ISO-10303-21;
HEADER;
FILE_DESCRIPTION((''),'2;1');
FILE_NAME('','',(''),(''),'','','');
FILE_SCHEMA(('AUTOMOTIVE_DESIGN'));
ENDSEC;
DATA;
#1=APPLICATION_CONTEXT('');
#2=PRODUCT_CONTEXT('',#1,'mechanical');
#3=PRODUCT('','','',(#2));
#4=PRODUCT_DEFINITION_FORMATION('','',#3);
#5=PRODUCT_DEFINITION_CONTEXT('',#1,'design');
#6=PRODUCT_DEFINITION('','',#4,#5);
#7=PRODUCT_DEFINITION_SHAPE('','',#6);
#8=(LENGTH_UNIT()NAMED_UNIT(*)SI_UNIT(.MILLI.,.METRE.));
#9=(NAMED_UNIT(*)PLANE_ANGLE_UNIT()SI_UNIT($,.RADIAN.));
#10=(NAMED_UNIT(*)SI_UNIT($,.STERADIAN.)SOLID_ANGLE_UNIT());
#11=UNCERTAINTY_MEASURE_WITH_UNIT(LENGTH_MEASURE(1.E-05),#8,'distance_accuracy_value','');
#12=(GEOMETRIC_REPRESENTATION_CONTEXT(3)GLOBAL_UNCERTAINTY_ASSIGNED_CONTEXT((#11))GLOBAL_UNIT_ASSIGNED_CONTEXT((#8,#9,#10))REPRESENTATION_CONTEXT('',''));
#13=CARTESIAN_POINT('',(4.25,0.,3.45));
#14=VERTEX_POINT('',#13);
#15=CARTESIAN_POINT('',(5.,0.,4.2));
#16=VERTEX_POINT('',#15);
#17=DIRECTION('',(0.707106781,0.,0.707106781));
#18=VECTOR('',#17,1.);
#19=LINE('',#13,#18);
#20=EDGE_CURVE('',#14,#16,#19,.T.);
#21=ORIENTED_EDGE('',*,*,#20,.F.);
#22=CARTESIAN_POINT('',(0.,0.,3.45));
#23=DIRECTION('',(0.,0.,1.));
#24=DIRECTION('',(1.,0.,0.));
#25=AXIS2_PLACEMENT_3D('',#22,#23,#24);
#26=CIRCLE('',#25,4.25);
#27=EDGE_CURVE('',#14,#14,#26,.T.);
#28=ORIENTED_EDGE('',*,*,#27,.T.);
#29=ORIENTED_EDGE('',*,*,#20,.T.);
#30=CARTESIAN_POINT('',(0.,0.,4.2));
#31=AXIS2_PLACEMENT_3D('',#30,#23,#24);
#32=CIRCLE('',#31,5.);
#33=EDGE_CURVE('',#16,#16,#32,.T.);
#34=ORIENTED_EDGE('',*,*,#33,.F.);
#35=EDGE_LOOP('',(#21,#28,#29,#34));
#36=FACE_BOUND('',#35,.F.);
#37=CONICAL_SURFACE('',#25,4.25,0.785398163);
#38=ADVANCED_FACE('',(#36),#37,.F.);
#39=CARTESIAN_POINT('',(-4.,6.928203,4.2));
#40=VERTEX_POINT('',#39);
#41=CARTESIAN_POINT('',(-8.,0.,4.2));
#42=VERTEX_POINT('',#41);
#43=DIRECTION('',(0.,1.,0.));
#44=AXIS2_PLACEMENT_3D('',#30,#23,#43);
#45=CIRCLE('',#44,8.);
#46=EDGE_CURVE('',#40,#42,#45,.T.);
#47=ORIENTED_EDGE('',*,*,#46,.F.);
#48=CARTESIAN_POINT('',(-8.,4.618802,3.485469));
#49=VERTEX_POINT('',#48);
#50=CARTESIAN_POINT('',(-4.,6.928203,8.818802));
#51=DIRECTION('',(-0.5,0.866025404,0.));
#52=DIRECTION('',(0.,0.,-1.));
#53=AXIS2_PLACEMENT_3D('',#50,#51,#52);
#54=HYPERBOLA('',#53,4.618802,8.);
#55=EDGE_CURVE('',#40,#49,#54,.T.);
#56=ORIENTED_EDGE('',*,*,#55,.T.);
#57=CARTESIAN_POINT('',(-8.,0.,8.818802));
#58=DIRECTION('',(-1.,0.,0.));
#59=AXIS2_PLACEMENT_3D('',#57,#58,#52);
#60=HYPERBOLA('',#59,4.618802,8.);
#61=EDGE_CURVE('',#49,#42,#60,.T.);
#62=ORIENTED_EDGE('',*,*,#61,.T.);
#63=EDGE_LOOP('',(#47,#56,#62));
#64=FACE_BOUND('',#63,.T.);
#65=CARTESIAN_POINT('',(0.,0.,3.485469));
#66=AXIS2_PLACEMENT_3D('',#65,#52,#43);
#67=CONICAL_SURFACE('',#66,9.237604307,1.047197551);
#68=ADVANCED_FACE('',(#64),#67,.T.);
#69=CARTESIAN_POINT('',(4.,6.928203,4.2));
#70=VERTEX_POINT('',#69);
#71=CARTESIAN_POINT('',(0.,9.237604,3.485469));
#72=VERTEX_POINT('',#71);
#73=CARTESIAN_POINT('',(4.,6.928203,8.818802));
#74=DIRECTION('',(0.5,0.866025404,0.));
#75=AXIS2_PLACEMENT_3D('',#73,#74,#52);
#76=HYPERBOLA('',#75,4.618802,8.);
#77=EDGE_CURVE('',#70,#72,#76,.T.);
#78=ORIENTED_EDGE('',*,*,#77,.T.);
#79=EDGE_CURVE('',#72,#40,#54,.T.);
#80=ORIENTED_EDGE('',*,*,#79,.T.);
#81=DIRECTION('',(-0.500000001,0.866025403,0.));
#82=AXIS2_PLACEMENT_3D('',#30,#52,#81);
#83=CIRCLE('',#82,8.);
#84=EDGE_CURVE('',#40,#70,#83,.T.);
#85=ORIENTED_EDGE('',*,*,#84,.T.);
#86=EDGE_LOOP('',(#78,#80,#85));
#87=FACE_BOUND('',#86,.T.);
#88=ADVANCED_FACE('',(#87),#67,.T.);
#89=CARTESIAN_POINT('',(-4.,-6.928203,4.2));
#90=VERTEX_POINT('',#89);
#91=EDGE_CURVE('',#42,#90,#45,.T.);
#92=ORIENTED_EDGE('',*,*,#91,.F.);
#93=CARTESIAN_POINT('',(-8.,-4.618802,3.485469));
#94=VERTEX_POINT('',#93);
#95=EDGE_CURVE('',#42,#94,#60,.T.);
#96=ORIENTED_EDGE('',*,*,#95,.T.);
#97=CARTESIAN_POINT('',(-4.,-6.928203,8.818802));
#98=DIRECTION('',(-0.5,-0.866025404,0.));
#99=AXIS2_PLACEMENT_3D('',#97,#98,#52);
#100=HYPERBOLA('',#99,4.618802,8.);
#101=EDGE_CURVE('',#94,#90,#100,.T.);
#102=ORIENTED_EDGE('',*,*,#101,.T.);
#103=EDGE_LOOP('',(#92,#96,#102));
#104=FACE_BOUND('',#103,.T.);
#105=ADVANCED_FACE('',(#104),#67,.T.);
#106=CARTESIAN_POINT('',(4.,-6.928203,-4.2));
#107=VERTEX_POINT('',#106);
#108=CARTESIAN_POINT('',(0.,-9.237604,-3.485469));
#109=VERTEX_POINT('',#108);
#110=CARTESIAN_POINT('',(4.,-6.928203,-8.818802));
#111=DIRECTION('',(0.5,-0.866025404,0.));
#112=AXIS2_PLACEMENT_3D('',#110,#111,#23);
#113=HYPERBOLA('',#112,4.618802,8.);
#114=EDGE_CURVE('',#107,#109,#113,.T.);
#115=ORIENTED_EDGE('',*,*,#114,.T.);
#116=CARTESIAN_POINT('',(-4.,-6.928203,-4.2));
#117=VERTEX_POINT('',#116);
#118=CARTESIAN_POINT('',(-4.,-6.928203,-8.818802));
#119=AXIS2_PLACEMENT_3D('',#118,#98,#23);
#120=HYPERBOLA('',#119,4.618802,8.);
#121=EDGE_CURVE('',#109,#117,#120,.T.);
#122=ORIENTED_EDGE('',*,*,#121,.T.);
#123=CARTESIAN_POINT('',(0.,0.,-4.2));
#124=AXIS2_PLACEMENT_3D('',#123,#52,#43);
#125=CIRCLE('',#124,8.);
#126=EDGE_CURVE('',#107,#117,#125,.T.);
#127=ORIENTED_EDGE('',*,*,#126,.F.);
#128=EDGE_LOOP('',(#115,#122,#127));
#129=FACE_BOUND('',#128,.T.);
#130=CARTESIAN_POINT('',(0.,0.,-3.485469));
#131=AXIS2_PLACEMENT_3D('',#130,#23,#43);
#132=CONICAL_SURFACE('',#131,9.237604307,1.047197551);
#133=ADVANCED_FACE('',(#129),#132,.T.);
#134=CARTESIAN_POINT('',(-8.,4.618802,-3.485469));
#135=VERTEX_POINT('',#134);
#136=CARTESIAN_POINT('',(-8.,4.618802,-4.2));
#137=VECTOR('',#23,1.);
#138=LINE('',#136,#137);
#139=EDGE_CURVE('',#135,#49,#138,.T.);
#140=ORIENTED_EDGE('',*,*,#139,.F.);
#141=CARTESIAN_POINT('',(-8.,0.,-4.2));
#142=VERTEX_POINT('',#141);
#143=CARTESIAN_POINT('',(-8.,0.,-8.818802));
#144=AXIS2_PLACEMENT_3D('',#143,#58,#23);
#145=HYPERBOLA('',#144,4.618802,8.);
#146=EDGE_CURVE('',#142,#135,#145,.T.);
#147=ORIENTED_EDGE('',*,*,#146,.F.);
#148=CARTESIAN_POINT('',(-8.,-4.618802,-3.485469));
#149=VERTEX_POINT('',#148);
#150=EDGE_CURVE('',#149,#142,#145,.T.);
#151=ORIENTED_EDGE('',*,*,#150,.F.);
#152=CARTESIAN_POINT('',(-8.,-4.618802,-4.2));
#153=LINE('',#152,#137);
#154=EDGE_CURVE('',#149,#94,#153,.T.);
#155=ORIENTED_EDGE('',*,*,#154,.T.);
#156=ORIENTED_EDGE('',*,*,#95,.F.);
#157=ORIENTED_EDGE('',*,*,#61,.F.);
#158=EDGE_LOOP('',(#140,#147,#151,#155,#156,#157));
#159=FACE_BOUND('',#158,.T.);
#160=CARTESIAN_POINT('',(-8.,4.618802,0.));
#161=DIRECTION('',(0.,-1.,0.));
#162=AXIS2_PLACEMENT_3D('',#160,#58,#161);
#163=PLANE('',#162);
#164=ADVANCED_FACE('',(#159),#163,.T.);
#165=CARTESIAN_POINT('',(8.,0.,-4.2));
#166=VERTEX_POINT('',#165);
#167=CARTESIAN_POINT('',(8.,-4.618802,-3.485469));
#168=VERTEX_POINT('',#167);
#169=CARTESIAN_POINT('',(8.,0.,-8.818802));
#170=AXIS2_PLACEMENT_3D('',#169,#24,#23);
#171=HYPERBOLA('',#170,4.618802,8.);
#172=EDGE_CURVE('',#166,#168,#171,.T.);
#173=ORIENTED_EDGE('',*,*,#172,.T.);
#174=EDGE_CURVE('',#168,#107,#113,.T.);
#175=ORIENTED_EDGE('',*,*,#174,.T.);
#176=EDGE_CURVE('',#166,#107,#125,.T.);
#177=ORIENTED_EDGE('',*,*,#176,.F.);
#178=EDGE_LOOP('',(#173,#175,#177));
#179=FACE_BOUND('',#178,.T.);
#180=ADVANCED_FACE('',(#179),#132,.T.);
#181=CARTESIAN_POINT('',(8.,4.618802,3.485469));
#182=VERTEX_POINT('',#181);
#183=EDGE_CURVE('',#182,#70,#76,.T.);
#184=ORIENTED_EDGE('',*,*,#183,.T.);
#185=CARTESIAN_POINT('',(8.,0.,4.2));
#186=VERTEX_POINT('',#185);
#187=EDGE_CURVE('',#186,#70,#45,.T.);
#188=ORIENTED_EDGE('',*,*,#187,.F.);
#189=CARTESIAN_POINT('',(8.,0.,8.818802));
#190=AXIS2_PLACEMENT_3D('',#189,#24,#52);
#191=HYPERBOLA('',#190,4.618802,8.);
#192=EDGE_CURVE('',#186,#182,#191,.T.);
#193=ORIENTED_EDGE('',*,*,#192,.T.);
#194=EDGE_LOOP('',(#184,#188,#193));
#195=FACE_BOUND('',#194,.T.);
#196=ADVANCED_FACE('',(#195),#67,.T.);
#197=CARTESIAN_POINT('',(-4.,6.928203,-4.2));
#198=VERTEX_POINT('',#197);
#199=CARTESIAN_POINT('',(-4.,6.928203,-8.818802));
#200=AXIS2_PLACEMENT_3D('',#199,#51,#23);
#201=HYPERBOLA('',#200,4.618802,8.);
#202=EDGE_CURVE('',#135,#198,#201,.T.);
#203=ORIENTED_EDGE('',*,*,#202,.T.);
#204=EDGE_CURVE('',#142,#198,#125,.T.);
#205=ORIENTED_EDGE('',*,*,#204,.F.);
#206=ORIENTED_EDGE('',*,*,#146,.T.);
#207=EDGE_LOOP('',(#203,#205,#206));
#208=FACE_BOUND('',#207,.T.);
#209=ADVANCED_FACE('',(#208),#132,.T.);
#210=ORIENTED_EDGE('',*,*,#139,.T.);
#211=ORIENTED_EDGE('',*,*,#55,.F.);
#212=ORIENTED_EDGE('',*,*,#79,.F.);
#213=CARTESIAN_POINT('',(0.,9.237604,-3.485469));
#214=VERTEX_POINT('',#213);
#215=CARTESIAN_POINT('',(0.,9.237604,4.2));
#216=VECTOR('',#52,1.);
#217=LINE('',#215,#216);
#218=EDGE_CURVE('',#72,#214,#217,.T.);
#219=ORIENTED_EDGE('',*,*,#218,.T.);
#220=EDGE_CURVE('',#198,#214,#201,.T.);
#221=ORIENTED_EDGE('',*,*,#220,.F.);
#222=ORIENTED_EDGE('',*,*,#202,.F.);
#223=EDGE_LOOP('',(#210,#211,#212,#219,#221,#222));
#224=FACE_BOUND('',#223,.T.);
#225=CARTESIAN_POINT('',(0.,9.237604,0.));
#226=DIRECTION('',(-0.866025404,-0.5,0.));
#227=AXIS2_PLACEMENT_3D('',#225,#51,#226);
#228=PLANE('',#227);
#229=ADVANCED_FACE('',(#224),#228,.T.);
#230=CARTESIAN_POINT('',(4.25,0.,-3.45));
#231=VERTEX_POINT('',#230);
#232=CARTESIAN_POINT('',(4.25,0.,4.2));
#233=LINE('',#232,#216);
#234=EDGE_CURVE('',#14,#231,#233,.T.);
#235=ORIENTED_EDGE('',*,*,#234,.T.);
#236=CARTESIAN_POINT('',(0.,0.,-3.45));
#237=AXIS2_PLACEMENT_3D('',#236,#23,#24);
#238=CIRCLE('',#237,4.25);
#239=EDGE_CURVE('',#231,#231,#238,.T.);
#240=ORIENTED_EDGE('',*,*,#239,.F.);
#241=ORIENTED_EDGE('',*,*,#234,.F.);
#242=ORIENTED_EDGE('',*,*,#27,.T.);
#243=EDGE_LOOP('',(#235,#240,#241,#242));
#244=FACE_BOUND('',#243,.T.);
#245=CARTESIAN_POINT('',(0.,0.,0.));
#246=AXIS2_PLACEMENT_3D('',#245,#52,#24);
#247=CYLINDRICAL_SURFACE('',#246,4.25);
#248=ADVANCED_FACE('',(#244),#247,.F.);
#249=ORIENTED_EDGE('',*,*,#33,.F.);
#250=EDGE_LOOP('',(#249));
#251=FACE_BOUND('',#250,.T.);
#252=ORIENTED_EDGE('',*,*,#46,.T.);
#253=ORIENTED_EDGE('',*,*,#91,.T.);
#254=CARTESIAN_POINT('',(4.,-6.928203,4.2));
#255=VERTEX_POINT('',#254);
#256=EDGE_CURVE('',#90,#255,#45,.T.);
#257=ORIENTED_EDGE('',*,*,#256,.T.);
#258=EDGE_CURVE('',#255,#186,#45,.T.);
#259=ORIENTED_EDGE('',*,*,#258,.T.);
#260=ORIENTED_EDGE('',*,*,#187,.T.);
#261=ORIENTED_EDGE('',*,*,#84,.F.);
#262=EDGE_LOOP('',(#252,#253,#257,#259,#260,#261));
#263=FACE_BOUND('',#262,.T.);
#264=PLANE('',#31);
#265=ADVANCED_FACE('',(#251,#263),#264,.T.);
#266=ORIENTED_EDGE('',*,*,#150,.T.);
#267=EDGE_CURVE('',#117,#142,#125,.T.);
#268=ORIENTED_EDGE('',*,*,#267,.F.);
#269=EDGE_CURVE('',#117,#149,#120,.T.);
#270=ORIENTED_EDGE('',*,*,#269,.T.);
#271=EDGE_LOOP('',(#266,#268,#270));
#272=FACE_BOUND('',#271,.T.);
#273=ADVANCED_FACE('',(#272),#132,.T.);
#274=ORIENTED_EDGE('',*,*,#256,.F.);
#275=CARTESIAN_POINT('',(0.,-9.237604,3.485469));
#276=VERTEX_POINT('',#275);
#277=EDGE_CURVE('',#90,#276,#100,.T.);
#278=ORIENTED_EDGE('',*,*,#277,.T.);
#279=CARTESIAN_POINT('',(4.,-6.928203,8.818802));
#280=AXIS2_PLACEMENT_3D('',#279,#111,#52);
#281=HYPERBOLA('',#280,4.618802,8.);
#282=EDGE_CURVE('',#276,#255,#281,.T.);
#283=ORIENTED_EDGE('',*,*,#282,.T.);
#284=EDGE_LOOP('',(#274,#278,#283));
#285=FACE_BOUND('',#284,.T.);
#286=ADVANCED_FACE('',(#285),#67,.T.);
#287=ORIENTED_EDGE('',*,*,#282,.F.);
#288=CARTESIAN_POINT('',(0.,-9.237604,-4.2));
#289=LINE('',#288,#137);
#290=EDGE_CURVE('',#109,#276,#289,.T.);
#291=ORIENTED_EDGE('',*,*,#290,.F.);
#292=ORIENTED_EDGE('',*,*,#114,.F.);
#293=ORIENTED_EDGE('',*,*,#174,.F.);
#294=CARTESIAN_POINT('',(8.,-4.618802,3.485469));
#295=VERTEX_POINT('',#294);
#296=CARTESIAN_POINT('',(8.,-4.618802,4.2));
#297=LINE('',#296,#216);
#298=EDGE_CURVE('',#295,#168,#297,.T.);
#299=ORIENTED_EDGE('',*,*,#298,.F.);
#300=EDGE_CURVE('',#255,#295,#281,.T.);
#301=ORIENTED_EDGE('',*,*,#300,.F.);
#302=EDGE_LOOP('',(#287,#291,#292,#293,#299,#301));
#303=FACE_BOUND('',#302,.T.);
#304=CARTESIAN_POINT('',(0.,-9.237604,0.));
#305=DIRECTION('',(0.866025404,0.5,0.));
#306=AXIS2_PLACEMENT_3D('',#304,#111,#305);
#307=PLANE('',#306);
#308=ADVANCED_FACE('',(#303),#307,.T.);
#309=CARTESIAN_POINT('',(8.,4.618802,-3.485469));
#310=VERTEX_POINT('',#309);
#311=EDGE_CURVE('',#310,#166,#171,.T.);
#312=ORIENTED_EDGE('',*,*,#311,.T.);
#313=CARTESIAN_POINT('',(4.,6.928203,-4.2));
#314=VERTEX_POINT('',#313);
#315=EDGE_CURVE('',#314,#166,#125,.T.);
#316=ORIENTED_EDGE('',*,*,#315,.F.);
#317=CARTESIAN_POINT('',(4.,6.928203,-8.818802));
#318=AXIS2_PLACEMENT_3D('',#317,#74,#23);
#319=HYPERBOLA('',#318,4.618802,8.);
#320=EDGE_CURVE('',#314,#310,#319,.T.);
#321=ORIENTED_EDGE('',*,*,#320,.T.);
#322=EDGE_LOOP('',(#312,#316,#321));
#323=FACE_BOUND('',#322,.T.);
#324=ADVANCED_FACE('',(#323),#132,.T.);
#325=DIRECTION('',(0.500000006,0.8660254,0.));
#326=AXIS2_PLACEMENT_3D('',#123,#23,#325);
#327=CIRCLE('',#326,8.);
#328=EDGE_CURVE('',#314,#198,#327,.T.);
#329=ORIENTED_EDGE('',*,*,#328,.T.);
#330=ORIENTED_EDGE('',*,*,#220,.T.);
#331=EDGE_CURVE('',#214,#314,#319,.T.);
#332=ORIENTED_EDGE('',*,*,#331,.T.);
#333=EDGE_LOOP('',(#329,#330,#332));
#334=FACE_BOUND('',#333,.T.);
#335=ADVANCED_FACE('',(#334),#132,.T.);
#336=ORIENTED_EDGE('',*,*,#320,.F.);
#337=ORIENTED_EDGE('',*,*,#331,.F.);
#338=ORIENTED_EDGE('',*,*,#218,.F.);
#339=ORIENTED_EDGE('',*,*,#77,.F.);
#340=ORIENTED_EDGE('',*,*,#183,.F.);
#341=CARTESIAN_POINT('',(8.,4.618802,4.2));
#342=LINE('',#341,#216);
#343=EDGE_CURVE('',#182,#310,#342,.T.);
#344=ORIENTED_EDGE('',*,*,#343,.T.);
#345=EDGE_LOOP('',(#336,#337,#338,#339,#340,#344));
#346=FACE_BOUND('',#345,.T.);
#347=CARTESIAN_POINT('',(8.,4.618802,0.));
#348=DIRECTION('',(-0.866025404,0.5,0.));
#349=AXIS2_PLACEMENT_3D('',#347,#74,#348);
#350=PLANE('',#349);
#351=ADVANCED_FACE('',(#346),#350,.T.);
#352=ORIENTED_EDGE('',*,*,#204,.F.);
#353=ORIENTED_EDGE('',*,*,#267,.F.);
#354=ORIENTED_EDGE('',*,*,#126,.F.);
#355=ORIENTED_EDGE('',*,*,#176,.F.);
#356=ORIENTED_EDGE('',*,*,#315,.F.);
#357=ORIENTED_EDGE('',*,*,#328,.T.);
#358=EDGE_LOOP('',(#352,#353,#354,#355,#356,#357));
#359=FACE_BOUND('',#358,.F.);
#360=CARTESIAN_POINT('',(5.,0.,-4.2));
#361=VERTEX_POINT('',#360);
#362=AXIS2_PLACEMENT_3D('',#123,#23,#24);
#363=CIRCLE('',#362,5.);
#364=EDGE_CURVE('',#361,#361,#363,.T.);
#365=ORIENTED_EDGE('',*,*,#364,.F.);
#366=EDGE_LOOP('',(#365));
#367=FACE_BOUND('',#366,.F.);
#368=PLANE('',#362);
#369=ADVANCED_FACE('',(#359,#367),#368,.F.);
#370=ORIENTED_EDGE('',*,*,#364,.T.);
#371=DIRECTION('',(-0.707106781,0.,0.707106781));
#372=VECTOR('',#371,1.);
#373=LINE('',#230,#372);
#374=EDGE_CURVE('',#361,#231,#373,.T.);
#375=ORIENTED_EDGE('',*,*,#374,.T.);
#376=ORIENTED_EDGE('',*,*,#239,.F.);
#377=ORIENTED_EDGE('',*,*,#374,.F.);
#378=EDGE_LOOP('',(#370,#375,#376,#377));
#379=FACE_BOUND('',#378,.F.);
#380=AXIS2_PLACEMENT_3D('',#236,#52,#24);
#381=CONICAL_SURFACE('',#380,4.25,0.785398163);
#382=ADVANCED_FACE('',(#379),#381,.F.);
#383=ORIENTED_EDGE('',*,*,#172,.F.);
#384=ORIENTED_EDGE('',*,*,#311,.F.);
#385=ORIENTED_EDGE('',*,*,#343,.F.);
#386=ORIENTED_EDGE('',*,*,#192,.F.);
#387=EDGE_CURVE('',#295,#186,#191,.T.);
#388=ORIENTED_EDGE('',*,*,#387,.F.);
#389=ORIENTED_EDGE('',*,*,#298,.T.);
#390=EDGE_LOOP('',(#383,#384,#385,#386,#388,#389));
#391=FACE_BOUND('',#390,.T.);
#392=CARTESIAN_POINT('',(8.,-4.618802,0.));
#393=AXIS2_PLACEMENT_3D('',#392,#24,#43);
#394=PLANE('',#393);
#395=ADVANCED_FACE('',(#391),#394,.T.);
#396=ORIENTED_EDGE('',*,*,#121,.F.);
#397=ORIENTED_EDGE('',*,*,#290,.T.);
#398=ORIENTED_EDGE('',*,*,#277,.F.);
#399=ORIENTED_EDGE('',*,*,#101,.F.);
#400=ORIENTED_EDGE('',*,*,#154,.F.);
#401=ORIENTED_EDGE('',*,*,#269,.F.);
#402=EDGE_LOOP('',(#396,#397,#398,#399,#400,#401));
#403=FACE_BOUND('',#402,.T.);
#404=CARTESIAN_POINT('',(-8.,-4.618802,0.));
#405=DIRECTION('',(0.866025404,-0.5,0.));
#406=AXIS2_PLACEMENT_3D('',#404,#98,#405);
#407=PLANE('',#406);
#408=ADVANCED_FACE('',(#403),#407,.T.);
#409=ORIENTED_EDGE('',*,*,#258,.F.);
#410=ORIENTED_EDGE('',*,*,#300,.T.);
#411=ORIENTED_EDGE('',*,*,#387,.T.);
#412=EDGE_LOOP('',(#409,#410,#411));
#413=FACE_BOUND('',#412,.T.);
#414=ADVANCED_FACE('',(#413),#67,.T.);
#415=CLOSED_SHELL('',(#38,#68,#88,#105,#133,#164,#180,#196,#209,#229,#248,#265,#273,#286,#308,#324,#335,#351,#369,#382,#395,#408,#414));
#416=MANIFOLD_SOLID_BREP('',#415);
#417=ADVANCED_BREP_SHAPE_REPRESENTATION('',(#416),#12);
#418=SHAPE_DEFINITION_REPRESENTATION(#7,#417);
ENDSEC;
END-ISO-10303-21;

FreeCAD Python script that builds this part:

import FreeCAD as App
import Part
import Sketcher
from FreeCAD import Vector
Q = App.Units.Quantity


def edges_at(feature, points):
    """Names of the edges that pass closest to the given points."""
    edges = feature.Shape.Edges
    near = lambda p: min(range(len(edges)), key=lambda i: edges[i].distToShape(Part.Vertex(*p))[0])
    return sorted({f"Edge{near(p) + 1}" for p in points})


def add_polygon(sketch, points):
    """Adds a closed chain of lines whose ends are joined by coincident constraints."""
    first, n = sketch.GeometryCount, len(points)
    for a, b in zip(points, points[1:] + points[:1]):
        sketch.addGeometry(Part.LineSegment(App.Vector(*a, 0), App.Vector(*b, 0)), False)
    for i in range(n):
        sketch.addConstraint(Sketcher.Constraint("Coincident", first + i, 2, first + (i + 1) % n, 1))

doc = App.newDocument("Part")
body = doc.addObject("PartDesign::Body", "Body")

sketch1 = body.newObject("Sketcher::SketchObject", "Sketch")
sketch1.AttachmentSupport = (doc.getObject("XY_Plane"), [""])
sketch1.MapMode = "FlatFace"
add_polygon(sketch1, [(0, 9.2), (-8, 4.6), (-8, -4.6), (0, -9.2), (8, -4.6), (8, 4.6)])
sketch1.addGeometry(Part.Circle(Vector(0, 0, 0), Vector(0, 0, 1), 4.2), False)
sketch1.addConstraint([
    Sketcher.Constraint("Vertical", 1),
    Sketcher.Constraint("Vertical", 4),
    Sketcher.Constraint("Coincident", 6, 3, -1, 1),
    Sketcher.Constraint("Symmetric", 0, 2, 3, 2, -1, 1),
    Sketcher.Constraint("Symmetric", 2, 2, 5, 2, -1, 1),
    Sketcher.Constraint("PointOnObject", 2, 2, -2),
    Sketcher.Constraint("Parallel", 2, 5),
    Sketcher.Constraint("Horizontal", 1, 2, 3, 2),
    Sketcher.Constraint("Diameter", 6, 8.5),
    Sketcher.Constraint("Angle", 0, Q("-150 deg")),
    Sketcher.Constraint("DistanceX", 0, 2, -1, 1, 8.0),
    Sketcher.Constraint("DistanceY", 1, 2, 1, 1, 9.237604),
])
pad1 = body.newObject("PartDesign::Pad", "Pad")
pad1.Profile = sketch1
pad1.Length = 8.4
pad1.Midplane = True

sketch2 = body.newObject("Sketcher::SketchObject", "Sketch001")
sketch2.AttachmentSupport = (doc.getObject("YZ_Plane"), [""])
sketch2.MapMode = "FlatFace"
add_polygon(sketch2, [(9.2, -3.5), (8, -4.2), (9.2, -4.2)])
sketch2.addConstraint([
    Sketcher.Constraint("Horizontal", 1),
    Sketcher.Constraint("Vertical", 2),
    Sketcher.Constraint("Angle", 0, Q("-150 deg")),
    Sketcher.Constraint("DistanceX", -1, 1, 0, 2, 8.0),
    Sketcher.Constraint("DistanceY", 0, 2, -1, 1, 4.2),
    Sketcher.Constraint("DistanceY", 2, 1, 2, 2, 0.714531),
])
groove = body.newObject("PartDesign::Groove", "Groove")
groove.Profile = sketch2
groove.ReferenceAxis = (sketch2, ["V_Axis"])
groove.Angle = 360

sketch3 = body.newObject("Sketcher::SketchObject", "Sketch002")
sketch3.AttachmentSupport = (doc.getObject("YZ_Plane"), [""])
sketch3.MapMode = "FlatFace"
add_polygon(sketch3, [(8, 4.2), (9.2, 3.5), (9.2, 4.2)])
sketch3.addConstraint([
    Sketcher.Constraint("Vertical", 1),
    Sketcher.Constraint("Horizontal", 2),
    Sketcher.Constraint("Angle", 0, Q("-30 deg")),
    Sketcher.Constraint("DistanceX", -1, 1, 2, 2, 8.0),
    Sketcher.Constraint("DistanceY", -1, 1, 1, 2, 4.2),
    Sketcher.Constraint("DistanceY", 1, 1, 1, 2, 0.714531),
])
groove2 = body.newObject("PartDesign::Groove", "Groove001")
groove2.Profile = sketch3
groove2.ReferenceAxis = (sketch3, ["V_Axis"])
groove2.Angle = 360
doc.recompute()

chamfer = body.newObject("PartDesign::Chamfer", "Chamfer")
chamfer.Base = (groove2, edges_at(groove2, [(-4.25, 0, -4.2), (-4.25, 0, 4.2)]))
chamfer.Size = 0.75

doc.recompute()
